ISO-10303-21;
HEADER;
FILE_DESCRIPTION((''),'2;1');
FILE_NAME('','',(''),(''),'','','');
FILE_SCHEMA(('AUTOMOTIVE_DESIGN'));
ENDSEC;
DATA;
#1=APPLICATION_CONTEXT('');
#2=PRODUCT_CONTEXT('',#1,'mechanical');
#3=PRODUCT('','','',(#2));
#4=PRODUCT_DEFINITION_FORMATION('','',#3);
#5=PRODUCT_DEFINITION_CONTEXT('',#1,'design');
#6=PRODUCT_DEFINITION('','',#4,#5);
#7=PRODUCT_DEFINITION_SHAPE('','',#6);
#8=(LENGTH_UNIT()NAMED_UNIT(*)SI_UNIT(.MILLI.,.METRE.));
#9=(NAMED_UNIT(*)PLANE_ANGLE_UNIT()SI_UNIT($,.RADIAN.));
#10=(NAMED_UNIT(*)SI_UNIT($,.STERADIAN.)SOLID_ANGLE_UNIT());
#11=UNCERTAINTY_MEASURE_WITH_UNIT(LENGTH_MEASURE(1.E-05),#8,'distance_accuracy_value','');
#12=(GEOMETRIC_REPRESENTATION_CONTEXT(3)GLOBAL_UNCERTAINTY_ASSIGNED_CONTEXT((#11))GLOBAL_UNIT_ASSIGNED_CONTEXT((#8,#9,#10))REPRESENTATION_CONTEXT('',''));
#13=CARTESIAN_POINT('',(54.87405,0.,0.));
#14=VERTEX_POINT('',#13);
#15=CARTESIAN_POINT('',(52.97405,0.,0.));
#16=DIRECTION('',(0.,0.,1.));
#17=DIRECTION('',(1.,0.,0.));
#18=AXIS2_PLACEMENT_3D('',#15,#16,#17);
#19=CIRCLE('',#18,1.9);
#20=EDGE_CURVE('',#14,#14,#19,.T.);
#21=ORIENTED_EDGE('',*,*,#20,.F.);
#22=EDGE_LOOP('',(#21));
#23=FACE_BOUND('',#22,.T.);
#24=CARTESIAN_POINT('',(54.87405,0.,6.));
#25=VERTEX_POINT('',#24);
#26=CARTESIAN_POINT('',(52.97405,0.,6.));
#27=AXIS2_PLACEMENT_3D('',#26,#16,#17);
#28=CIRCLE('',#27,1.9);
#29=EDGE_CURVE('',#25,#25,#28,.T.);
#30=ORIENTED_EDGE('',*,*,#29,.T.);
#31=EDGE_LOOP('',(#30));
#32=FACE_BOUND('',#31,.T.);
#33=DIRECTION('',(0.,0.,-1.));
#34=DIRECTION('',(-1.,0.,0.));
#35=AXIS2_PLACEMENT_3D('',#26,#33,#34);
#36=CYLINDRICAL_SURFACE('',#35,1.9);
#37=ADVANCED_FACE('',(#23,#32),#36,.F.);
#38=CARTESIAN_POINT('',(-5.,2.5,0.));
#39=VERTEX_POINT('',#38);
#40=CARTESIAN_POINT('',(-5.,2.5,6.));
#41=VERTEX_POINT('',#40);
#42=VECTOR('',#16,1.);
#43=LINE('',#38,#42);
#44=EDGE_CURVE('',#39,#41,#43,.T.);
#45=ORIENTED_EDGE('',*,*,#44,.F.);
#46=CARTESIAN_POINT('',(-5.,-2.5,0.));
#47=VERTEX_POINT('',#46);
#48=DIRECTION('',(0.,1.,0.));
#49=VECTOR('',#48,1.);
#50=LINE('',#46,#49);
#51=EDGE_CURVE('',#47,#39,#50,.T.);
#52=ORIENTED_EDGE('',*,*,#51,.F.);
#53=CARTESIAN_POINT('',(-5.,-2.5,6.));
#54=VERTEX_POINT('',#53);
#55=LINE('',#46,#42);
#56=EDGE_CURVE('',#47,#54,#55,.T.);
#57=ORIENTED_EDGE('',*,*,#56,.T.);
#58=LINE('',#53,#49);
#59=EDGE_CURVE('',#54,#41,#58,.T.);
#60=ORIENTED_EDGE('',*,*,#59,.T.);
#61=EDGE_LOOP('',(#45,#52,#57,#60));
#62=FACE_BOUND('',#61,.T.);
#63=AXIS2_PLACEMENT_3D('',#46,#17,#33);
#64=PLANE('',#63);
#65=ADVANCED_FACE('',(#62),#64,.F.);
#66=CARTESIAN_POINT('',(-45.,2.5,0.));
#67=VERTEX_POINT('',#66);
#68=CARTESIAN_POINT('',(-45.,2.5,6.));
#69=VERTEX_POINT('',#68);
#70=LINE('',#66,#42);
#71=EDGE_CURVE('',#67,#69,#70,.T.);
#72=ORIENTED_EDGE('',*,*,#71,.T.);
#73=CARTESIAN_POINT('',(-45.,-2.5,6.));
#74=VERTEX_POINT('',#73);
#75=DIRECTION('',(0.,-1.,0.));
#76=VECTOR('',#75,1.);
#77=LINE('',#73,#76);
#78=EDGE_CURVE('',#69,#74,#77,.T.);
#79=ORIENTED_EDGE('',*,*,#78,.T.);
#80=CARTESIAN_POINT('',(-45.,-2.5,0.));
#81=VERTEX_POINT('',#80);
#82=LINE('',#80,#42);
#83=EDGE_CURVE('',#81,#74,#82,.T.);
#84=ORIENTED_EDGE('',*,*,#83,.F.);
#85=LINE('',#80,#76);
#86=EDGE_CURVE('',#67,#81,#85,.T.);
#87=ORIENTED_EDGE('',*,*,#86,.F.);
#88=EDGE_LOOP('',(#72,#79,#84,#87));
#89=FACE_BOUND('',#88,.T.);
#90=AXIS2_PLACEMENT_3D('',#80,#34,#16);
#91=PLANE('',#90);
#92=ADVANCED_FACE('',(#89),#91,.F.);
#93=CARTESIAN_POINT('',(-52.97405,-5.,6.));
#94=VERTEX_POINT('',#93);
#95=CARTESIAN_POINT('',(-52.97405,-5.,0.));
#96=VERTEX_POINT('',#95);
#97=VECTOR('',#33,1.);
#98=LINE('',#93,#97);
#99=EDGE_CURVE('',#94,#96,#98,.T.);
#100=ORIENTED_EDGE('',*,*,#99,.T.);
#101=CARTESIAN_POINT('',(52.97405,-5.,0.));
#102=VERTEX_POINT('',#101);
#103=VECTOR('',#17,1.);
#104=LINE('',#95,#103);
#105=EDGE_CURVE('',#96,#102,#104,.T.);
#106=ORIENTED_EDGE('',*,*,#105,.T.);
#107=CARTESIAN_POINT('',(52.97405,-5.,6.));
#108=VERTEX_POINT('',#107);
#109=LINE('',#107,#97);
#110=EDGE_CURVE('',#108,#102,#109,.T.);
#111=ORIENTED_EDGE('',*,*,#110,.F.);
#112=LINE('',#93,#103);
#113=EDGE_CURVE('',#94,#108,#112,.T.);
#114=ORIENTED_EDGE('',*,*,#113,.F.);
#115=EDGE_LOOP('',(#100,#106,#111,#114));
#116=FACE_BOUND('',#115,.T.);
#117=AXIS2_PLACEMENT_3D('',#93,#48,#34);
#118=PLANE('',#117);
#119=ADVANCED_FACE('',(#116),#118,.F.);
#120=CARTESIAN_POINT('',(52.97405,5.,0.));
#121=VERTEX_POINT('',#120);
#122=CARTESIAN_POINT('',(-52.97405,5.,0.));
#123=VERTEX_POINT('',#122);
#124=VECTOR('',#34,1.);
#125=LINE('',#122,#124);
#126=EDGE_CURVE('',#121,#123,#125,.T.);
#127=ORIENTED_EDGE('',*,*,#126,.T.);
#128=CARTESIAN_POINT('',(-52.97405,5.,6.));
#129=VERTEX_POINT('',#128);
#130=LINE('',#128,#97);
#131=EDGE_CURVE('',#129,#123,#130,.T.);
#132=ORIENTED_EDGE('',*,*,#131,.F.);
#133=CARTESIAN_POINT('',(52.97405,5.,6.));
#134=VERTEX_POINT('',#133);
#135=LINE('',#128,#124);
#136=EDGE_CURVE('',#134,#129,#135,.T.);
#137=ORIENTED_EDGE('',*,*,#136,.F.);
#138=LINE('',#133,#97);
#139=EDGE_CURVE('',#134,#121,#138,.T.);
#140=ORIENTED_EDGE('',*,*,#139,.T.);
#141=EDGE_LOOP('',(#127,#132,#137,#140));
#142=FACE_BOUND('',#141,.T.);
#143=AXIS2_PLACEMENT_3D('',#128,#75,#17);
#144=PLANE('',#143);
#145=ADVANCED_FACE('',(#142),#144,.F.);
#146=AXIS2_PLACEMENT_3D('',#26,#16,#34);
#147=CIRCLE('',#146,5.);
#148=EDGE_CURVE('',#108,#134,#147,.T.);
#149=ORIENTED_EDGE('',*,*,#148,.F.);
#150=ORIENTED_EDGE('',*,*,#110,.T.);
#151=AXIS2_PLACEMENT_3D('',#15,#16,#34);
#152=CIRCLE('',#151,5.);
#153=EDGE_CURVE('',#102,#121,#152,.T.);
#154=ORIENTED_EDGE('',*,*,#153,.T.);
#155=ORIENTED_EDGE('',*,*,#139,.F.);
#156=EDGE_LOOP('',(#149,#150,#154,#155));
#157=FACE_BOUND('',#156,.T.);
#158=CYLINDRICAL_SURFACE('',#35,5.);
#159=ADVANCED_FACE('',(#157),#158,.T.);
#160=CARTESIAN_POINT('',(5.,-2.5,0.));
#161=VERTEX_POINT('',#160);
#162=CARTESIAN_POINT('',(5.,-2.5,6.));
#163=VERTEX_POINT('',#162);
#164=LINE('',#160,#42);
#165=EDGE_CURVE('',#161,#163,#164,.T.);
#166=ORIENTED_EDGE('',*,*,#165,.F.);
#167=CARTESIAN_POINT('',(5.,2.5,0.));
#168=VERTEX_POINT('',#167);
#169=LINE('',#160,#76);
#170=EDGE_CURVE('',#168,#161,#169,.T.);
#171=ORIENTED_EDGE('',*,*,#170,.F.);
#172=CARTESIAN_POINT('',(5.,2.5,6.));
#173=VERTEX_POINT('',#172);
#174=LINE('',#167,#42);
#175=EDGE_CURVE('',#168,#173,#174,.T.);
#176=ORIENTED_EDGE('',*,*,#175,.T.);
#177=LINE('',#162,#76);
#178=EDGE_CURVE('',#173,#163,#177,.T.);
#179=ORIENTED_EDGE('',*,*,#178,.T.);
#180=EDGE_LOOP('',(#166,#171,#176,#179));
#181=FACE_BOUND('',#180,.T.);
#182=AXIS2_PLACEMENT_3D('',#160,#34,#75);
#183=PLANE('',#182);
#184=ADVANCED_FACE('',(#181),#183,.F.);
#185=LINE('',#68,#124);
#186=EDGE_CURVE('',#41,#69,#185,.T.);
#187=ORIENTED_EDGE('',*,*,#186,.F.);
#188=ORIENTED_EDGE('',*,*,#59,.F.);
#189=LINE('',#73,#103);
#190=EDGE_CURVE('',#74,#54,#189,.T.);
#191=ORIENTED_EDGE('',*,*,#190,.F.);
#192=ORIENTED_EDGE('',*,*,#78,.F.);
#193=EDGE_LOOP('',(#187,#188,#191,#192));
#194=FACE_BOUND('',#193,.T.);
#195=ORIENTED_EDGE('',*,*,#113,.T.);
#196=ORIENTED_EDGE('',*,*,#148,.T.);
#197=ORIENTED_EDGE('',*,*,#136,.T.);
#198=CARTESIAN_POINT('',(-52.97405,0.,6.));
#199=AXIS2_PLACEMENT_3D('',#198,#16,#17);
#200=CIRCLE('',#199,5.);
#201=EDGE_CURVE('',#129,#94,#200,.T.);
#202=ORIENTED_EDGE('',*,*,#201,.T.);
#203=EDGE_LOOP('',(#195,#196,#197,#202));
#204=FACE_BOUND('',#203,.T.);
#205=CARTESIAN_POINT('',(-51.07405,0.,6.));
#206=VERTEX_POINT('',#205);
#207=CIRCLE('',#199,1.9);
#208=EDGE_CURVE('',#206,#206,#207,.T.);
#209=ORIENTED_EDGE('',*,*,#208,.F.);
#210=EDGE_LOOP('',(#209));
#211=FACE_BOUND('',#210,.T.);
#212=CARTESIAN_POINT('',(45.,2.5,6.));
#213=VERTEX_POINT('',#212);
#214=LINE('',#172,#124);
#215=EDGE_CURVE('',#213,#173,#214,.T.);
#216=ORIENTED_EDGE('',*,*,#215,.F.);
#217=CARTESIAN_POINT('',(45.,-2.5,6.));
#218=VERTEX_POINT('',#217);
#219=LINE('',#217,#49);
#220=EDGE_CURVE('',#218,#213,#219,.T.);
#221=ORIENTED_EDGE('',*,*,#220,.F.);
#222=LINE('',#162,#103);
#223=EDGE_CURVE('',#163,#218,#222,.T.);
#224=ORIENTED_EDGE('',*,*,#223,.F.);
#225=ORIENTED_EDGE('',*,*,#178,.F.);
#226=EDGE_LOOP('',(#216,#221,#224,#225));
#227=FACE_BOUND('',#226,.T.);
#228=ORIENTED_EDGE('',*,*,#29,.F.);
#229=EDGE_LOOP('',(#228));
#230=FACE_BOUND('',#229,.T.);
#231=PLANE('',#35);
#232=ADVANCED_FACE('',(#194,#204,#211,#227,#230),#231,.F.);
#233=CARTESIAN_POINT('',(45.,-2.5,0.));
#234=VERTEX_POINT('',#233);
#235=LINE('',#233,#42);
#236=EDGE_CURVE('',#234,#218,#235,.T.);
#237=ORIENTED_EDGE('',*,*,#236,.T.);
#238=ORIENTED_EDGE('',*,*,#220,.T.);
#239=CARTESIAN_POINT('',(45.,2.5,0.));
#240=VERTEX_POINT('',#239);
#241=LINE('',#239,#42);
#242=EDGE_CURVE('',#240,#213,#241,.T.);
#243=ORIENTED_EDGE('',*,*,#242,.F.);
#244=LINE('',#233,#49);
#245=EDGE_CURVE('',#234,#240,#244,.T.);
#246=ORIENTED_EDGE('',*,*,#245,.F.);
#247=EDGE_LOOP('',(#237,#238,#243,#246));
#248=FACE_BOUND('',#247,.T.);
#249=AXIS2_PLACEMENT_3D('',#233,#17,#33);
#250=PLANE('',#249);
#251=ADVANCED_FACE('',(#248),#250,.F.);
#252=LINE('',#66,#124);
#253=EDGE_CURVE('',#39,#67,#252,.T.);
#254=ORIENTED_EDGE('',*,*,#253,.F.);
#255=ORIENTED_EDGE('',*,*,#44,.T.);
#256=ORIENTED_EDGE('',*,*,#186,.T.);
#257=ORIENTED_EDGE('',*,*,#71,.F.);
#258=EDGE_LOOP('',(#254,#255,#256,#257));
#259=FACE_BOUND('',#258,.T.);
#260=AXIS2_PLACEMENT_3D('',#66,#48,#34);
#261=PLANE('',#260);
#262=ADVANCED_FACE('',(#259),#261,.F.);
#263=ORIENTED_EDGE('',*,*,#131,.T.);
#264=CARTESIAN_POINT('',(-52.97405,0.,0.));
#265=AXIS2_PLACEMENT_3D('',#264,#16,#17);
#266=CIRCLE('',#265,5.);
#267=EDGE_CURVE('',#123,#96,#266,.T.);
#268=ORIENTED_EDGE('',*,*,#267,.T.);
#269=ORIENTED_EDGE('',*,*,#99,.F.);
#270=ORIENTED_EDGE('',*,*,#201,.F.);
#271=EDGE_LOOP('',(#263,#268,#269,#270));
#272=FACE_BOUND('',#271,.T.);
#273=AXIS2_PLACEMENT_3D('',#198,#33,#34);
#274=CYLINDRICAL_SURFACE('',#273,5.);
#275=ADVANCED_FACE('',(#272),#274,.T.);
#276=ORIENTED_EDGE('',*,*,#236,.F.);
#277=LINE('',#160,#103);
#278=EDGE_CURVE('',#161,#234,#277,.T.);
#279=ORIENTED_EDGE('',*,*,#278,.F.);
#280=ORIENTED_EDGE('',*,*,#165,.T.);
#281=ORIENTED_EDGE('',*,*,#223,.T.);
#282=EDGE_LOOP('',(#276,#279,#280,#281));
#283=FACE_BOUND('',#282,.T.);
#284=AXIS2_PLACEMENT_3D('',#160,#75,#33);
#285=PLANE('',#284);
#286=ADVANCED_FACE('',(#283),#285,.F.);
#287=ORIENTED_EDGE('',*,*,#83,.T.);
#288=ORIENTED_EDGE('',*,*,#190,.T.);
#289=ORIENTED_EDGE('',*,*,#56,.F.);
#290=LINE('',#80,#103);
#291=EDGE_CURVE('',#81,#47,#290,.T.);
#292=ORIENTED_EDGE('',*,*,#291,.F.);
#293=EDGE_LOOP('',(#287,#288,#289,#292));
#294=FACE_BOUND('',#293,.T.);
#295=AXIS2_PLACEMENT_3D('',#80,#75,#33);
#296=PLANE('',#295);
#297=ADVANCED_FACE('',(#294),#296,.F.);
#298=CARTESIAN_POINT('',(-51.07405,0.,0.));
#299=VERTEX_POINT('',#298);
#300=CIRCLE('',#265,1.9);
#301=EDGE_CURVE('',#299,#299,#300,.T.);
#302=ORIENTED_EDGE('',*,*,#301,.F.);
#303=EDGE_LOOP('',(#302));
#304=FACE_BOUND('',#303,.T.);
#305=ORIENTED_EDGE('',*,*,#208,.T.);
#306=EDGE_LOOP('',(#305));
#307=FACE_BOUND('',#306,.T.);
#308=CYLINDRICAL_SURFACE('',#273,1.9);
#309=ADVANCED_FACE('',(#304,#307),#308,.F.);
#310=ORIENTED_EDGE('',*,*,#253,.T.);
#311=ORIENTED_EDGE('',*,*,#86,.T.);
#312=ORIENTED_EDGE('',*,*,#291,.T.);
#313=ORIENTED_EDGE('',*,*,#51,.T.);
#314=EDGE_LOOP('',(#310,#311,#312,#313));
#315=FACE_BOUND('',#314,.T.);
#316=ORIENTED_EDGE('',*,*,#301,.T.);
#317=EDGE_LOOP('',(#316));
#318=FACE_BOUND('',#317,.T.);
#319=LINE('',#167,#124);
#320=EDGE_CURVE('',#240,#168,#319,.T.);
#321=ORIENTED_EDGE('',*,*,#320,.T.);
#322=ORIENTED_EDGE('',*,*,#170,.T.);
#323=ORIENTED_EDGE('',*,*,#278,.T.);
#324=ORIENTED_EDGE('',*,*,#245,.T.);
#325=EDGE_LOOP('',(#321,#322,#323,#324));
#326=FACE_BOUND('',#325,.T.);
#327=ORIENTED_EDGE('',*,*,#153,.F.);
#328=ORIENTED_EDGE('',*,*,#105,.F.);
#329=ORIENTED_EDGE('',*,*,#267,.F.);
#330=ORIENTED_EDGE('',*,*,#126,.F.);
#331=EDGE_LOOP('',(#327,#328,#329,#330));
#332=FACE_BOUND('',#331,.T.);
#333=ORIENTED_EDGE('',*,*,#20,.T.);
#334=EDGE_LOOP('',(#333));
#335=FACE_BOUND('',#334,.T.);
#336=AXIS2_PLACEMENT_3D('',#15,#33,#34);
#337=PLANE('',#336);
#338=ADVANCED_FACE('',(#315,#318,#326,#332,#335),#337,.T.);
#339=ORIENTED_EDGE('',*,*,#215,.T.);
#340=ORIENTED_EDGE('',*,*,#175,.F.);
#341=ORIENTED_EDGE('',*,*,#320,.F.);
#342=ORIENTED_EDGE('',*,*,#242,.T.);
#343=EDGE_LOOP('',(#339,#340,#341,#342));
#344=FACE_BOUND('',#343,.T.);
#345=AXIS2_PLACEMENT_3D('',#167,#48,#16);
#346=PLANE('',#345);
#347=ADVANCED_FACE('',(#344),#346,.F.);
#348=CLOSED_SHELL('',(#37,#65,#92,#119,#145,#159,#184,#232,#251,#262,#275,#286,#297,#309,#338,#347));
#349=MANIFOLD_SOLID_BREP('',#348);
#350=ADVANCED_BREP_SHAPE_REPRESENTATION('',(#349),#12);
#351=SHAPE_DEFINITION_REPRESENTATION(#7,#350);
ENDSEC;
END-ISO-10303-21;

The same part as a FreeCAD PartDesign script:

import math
import FreeCAD as App
import Part
import Sketcher

V = App.Vector


def add_polygon(sketch, points):
    """Adds a closed chain of lines whose ends are joined by coincident constraints."""
    first, n = sketch.GeometryCount, len(points)
    for a, b in zip(points, points[1:] + points[:1]):
        sketch.addGeometry(Part.LineSegment(App.Vector(*a, 0), App.Vector(*b, 0)), False)
    for i in range(n):
        sketch.addConstraint(Sketcher.Constraint("Coincident", first + i, 2, first + (i + 1) % n, 1))

doc = App.newDocument("Part")
body = doc.addObject("PartDesign::Body", "Body")

# Sketch on XY plane
sketch1 = body.newObject("Sketcher::SketchObject", "Sketch")
sketch1.AttachmentSupport = (doc.getObject("XY_Plane"), [""])
sketch1.MapMode = "FlatFace"
sketch1.addGeometry([
    Part.LineSegment(V(53, 5, 0), V(-53, 5, 0)),  # 0
    Part.ArcOfCircle(Part.Circle(V(-53, 0, 0), V(0, 0, 1), 5), math.radians(90), math.radians(270)),  # 1
    Part.LineSegment(V(-53, -5, 0), V(53, -5, 0)),  # 2
    Part.ArcOfCircle(Part.Circle(V(53, 0, 0), V(0, 0, 1), 5), math.radians(-90), math.radians(90)),  # 3
    Part.Circle(V(53, 0, 0), V(0, 0, 1), 1.9),  # 4
    Part.Circle(V(-53, 0, 0), V(0, 0, 1), 1.9),  # 5
], False)
sketch1.addConstraint([
    Sketcher.Constraint("Tangent", 0, 2, 1, 1),
    Sketcher.Constraint("Tangent", 1, 2, 2, 1),
    Sketcher.Constraint("Tangent", 2, 2, 3, 1),
    Sketcher.Constraint("Tangent", 3, 2, 0, 1),
    Sketcher.Constraint("Horizontal", 0),
    Sketcher.Constraint("Horizontal", 2),
    Sketcher.Constraint("Coincident", 4, 3, 3, 3),
    Sketcher.Constraint("Coincident", 5, 3, 1, 3),
    Sketcher.Constraint("Equal", 4, 5),
    Sketcher.Constraint("Symmetric", 1, 3, 3, 3, -1, 1),
    Sketcher.Constraint("Radius", 1, 5.0),
    Sketcher.Constraint("Diameter", 4, 3.8),
    Sketcher.Constraint("DistanceX", 0, 2, 0, 1, 105.9481),
])
pad1 = body.newObject("PartDesign::Pad", "Pad")
pad1.Profile = sketch1
pad1.Length = 6

# Sketch on XY plane
sketch2 = body.newObject("Sketcher::SketchObject", "Sketch001")
sketch2.AttachmentSupport = (doc.getObject("XY_Plane"), [""])
sketch2.MapMode = "FlatFace"
sketch2.AttachmentOffset = App.Placement(V(0, 0, 6), App.Rotation())
add_polygon(sketch2, [(-45, 2), (-45, -2), (-5, -2), (-5, 2)])  # lines 0-3
add_polygon(sketch2, [(5, 2), (5, -2), (45, -2), (45, 2)])  # lines 4-7
sketch2.addConstraint([
    Sketcher.Constraint("Vertical", 0),
    Sketcher.Constraint("Horizontal", 1),
    Sketcher.Constraint("Vertical", 2),
    Sketcher.Constraint("Horizontal", 3),
    Sketcher.Constraint("Vertical", 4),
    Sketcher.Constraint("Horizontal", 5),
    Sketcher.Constraint("Vertical", 6),
    Sketcher.Constraint("Horizontal", 7),
    Sketcher.Constraint("Symmetric", 2, 2, 4, 2, -1, 1),
    Sketcher.Constraint("Symmetric", 0, 2, 6, 2, -1, 1),
    Sketcher.Constraint("Horizontal", 1, 2, 4, 2),
    Sketcher.Constraint("DistanceX", 1, 1, 1, 2, 40.0),
    Sketcher.Constraint("DistanceY", 0, 2, 0, 1, 5.0),
    Sketcher.Constraint("DistanceX", 0, 2, -1, 1, 45.0),
])
pocket1 = body.newObject("PartDesign::Pocket", "Pocket")
pocket1.Profile = sketch2
pocket1.Type = "ThroughAll"

doc.recompute()
